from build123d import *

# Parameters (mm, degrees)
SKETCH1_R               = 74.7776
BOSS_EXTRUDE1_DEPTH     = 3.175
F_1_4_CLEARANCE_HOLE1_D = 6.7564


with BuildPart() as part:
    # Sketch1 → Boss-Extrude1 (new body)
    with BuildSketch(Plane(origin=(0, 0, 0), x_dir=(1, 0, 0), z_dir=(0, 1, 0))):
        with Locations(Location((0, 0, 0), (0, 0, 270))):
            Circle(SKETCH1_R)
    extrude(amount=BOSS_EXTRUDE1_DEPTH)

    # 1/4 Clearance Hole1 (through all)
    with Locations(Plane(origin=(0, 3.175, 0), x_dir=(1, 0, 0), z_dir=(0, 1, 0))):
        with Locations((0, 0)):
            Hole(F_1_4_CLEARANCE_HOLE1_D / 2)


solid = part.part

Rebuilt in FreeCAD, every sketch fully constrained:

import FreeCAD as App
import Part
import Sketcher
Q = App.Units.Quantity

doc = App.newDocument("Part")
body = doc.addObject("PartDesign::Body", "Body")

sketch1 = body.newObject("Sketcher::SketchObject", "Sketch")
sketch1.AttachmentSupport = (doc.getObject("XZ_Plane"), [""])
sketch1.MapMode = "FlatFace"
sketch1.addGeometry(Part.Circle(App.Vector(0, 0, 0), App.Vector(0, 0, 1), 75), False)
sketch1.addConstraint([
    Sketcher.Constraint("Coincident", 0, 3, -1, 1),
    Sketcher.Constraint("Diameter", 0, Q("5.888 in")),
])
pad1 = body.newObject("PartDesign::Pad", "Pad")
pad1.Profile = sketch1
pad1.Length = Q("0.125 in")
pad1.Reversed = True

sketch2 = body.newObject("Sketcher::SketchObject", "Sketch001")
sketch2.AttachmentSupport = (doc.getObject("XZ_Plane"), [""])
sketch2.MapMode = "FlatFace"
sketch2.AttachmentOffset = App.Placement(App.Vector(0, 0, -0.125 * 25.4), App.Rotation())
sketch2.addGeometry(Part.Circle(App.Vector(0, 0, 0), App.Vector(0, 0, 1), 3.4), False)
sketch2.addConstraint([
    Sketcher.Constraint("Coincident", 0, 3, -1, 1),
    Sketcher.Constraint("Diameter", 0, Q("0.266 in")),
])
doc.recompute()
hole = body.newObject("PartDesign::Hole", "Hole")
hole.Profile = sketch2
hole.ThreadType = "None"
hole.Diameter = Q("0.266 in")
hole.DepthType = "ThroughAll"
hole.Reversed = True

doc.recompute()
